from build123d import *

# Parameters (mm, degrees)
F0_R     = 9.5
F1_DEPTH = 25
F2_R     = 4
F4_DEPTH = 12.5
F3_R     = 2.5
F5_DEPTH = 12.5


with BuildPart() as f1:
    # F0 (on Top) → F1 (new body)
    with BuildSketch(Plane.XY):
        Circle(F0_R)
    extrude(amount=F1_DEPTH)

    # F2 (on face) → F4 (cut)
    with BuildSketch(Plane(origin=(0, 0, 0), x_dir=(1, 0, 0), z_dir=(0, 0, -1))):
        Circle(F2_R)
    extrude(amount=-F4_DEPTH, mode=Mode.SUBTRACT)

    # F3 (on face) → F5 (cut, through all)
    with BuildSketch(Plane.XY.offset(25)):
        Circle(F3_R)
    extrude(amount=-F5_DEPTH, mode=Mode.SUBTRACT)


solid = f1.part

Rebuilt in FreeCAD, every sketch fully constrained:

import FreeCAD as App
import Part
import Sketcher
Q = App.Units.Quantity

doc = App.newDocument("Part")
body = doc.addObject("PartDesign::Body", "Body")

sketch1 = body.newObject("Sketcher::SketchObject", "Sketch")
sketch1.AttachmentSupport = (doc.getObject("XY_Plane"), [""])
sketch1.MapMode = "FlatFace"
sketch1.addGeometry(Part.Circle(App.Vector(0, 0, 0), App.Vector(0, 0, 1), 9.5), False)
sketch1.addConstraint([
    Sketcher.Constraint("Coincident", 0, 3, -1, 1),
    Sketcher.Constraint("Diameter", 0, Q("19 mm")),
])
pad1 = body.newObject("PartDesign::Pad", "Pad")
pad1.Profile = sketch1
pad1.Length = 25

sketch2 = body.newObject("Sketcher::SketchObject", "Sketch001")
sketch2.AttachmentSupport = (doc.getObject("XY_Plane"), [""])
sketch2.MapMode = "FlatFace"
sketch2.addGeometry(Part.Circle(App.Vector(0, 0, 0), App.Vector(0, 0, 1), 4), False)
sketch2.addConstraint([
    Sketcher.Constraint("Coincident", 0, 3, -1, 1),
    Sketcher.Constraint("Diameter", 0, Q("8 mm")),
])
pocket1 = body.newObject("PartDesign::Pocket", "Pocket")
pocket1.Profile = sketch2
pocket1.Length = 12.5
pocket1.Reversed = True

sketch3 = body.newObject("Sketcher::SketchObject", "Sketch002")
sketch3.AttachmentSupport = (doc.getObject("XY_Plane"), [""])
sketch3.MapMode = "FlatFace"
sketch3.AttachmentOffset = App.Placement(App.Vector(0, 0, 25), App.Rotation())
sketch3.addGeometry(Part.Circle(App.Vector(0, 0, 0), App.Vector(0, 0, 1), 2.5), False)
sketch3.addConstraint([
    Sketcher.Constraint("Coincident", 0, 3, -1, 1),
    Sketcher.Constraint("Diameter", 0, Q("5 mm")),
])
pocket2 = body.newObject("PartDesign::Pocket", "Pocket001")
pocket2.Profile = sketch3
pocket2.Type = "ThroughAll"

doc.recompute()
